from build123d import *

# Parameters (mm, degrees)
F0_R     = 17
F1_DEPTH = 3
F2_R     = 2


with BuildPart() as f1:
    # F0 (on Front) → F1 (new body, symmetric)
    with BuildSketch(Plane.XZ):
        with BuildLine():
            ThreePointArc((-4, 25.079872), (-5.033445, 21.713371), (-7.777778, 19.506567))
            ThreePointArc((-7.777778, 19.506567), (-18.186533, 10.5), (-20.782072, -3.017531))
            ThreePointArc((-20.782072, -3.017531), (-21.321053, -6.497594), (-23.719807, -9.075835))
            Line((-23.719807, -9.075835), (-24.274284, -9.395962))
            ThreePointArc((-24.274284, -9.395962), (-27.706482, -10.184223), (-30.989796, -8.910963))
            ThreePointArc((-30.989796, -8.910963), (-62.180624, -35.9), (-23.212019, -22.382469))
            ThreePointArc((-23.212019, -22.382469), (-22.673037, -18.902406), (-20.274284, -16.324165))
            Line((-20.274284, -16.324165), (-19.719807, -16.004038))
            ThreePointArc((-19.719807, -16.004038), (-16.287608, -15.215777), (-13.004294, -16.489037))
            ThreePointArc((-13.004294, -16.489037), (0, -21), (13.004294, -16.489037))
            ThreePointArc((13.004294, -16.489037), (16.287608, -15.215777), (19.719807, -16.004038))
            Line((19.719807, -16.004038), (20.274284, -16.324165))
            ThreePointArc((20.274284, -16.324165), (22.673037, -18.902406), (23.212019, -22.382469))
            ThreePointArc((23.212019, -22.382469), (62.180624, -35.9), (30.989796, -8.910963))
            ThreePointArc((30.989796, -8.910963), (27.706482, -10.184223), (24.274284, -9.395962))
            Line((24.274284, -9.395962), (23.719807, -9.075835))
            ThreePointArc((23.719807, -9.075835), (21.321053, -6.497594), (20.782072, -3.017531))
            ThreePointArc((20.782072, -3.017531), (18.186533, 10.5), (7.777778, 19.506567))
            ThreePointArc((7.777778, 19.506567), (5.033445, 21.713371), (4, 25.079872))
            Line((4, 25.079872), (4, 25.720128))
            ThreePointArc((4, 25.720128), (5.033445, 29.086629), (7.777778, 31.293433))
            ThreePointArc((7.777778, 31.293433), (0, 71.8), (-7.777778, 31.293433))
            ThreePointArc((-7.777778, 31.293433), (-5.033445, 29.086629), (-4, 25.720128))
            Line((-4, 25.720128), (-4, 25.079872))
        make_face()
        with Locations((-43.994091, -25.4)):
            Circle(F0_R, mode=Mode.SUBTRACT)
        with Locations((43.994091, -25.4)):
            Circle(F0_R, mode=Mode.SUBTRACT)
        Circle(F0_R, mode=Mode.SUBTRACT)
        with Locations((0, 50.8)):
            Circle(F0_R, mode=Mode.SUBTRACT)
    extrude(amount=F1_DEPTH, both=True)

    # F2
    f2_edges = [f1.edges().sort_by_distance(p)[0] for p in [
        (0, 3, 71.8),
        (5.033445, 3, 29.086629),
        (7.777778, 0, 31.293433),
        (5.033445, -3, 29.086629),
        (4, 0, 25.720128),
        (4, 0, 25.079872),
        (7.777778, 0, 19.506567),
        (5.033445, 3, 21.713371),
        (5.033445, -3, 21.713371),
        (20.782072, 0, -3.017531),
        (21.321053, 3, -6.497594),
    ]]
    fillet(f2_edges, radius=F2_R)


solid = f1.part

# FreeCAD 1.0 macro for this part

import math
import FreeCAD as App
import Part
import Sketcher
Q = App.Units.Quantity


def edges_at(feature, points):
    """Names of the edges that pass closest to the given points."""
    edges = feature.Shape.Edges
    near = lambda p: min(range(len(edges)), key=lambda i: edges[i].distToShape(Part.Vertex(*p))[0])
    return sorted({f"Edge{near(p) + 1}" for p in points})

doc = App.newDocument("Part")
body = doc.addObject("PartDesign::Body", "Body")

sketch1 = body.newObject("Sketcher::SketchObject", "Sketch")
sketch1.AttachmentSupport = (doc.getObject("XZ_Plane"), [""])
sketch1.MapMode = "FlatFace"
sketch1.addGeometry([
    Part.ArcOfCircle(Part.Circle(App.Vector(-10, 25.1, 0), App.Vector(0, 0, 1), 6), math.radians(-68), math.radians(0)),
    Part.ArcOfCircle(Part.Circle(App.Vector(0, 0, 0), App.Vector(0, 0, 1), 21), math.radians(112), math.radians(188)),
    Part.ArcOfCircle(Part.Circle(App.Vector(-26.7, -3.9, 0), App.Vector(0, 0, 1), 6), math.radians(-60), math.radians(8)),
    Part.LineSegment(App.Vector(-23.7, -9.1, 0), App.Vector(-24.3, -9.4, 0)),
    Part.ArcOfCircle(Part.Circle(App.Vector(-27.3, -4.2, 0), App.Vector(0, 0, 1), 6), math.radians(-128), math.radians(-60)),
    Part.ArcOfCircle(Part.Circle(App.Vector(-44, -25.4, 0), App.Vector(0, 0, 1), 21), math.radians(52), math.radians(368)),
    Part.ArcOfCircle(Part.Circle(App.Vector(-17.3, -21.5, 0), App.Vector(0, 0, 1), 6), math.radians(120), math.radians(188)),
    Part.LineSegment(App.Vector(-20.3, -16.3, 0), App.Vector(-19.7, -16, 0)),
    Part.ArcOfCircle(Part.Circle(App.Vector(-16.7, -21.2, 0), App.Vector(0, 0, 1), 6), math.radians(52), math.radians(120)),
    Part.ArcOfCircle(Part.Circle(App.Vector(0, 0, 0), App.Vector(0, 0, 1), 21), math.radians(-128), math.radians(-52)),
    Part.ArcOfCircle(Part.Circle(App.Vector(16.7, -21.2, 0), App.Vector(0, 0, 1), 6), math.radians(60), math.radians(128)),
    Part.LineSegment(App.Vector(19.7, -16, 0), App.Vector(20.3, -16.3, 0)),
    Part.ArcOfCircle(Part.Circle(App.Vector(17.3, -21.5, 0), App.Vector(0, 0, 1), 6), math.radians(-8), math.radians(60)),
    Part.ArcOfCircle(Part.Circle(App.Vector(44, -25.4, 0), App.Vector(0, 0, 1), 21), math.radians(172), math.radians(488)),
    Part.ArcOfCircle(Part.Circle(App.Vector(27.3, -4.2, 0), App.Vector(0, 0, 1), 6), math.radians(-120), math.radians(-52)),
    Part.LineSegment(App.Vector(24.3, -9.4, 0), App.Vector(23.7, -9.1, 0)),
    Part.ArcOfCircle(Part.Circle(App.Vector(26.7, -3.9, 0), App.Vector(0, 0, 1), 6), math.radians(172), math.radians(240)),
    Part.ArcOfCircle(Part.Circle(App.Vector(0, 0, 0), App.Vector(0, 0, 1), 21), math.radians(-8), math.radians(68)),
    Part.ArcOfCircle(Part.Circle(App.Vector(10, 25.1, 0), App.Vector(0, 0, 1), 6), math.radians(-180), math.radians(-112)),
    Part.LineSegment(App.Vector(4, 25.1, 0), App.Vector(4, 25.7, 0)),
    Part.ArcOfCircle(Part.Circle(App.Vector(10, 25.7, 0), App.Vector(0, 0, 1), 6), math.radians(112), math.radians(180)),
    Part.ArcOfCircle(Part.Circle(App.Vector(0, 50.8, 0), App.Vector(0, 0, 1), 21), math.radians(-68), math.radians(248)),
    Part.ArcOfCircle(Part.Circle(App.Vector(-10, 25.7, 0), App.Vector(0, 0, 1), 6), math.radians(0), math.radians(68)),
    Part.LineSegment(App.Vector(-4, 25.7, 0), App.Vector(-4, 25.1, 0)),
    Part.Circle(App.Vector(-44, -25.4, 0), App.Vector(0, 0, 1), 17),
    Part.Circle(App.Vector(44, -25.4, 0), App.Vector(0, 0, 1), 17),
    Part.Circle(App.Vector(0, 0, 0), App.Vector(0, 0, 1), 17),
    Part.Circle(App.Vector(0, 50.8, 0), App.Vector(0, 0, 1), 17),
], False)
sketch1.addConstraint([
    Sketcher.Constraint("Tangent", 0, 1, 1, 1),
    Sketcher.Constraint("Tangent", 1, 2, 2, 2),
    Sketcher.Constraint("Tangent", 2, 1, 3, 1),
    Sketcher.Constraint("Tangent", 3, 2, 4, 2),
    Sketcher.Constraint("Tangent", 4, 1, 5, 1),
    Sketcher.Constraint("Tangent", 5, 2, 6, 2),
    Sketcher.Constraint("Tangent", 6, 1, 7, 1),
    Sketcher.Constraint("Tangent", 7, 2, 8, 2),
    Sketcher.Constraint("Tangent", 8, 1, 9, 1),
    Sketcher.Constraint("Tangent", 9, 2, 10, 2),
    Sketcher.Constraint("Tangent", 10, 1, 11, 1),
    Sketcher.Constraint("Tangent", 11, 2, 12, 2),
    Sketcher.Constraint("Tangent", 12, 1, 13, 1),
    Sketcher.Constraint("Tangent", 13, 2, 14, 2),
    Sketcher.Constraint("Tangent", 14, 1, 15, 1),
    Sketcher.Constraint("Tangent", 15, 2, 16, 2),
    Sketcher.Constraint("Tangent", 16, 1, 17, 1),
    Sketcher.Constraint("Tangent", 17, 2, 18, 2),
    Sketcher.Constraint("Tangent", 18, 1, 19, 1),
    Sketcher.Constraint("Tangent", 19, 2, 20, 2),
    Sketcher.Constraint("Tangent", 20, 1, 21, 1),
    Sketcher.Constraint("Tangent", 21, 2, 22, 2),
    Sketcher.Constraint("Tangent", 22, 1, 23, 1),
    Sketcher.Constraint("Tangent", 23, 2, 0, 2),
    Sketcher.Constraint("Vertical", 19),
    Sketcher.Constraint("Vertical", 23),
    Sketcher.Constraint("Coincident", 1, 3, -1, 1),
    Sketcher.Constraint("Coincident", 9, 3, -1, 1),
    Sketcher.Constraint("Coincident", 17, 3, -1, 1),
    Sketcher.Constraint("Coincident", 26, 3, -1, 1),
    Sketcher.Constraint("Coincident", 24, 3, 5, 3),
    Sketcher.Constraint("Coincident", 25, 3, 13, 3),
    Sketcher.Constraint("Coincident", 27, 3, 21, 3),
    Sketcher.Constraint("Equal", 2, 4),
    Sketcher.Constraint("Equal", 1, 5),
    Sketcher.Constraint("Equal", 4, 8),
    Sketcher.Constraint("Equal", 5, 9),
    Sketcher.Constraint("Equal", 8, 10),
    Sketcher.Constraint("Equal", 6, 12),
    Sketcher.Constraint("Equal", 9, 13),
    Sketcher.Constraint("Equal", 10, 14),
    Sketcher.Constraint("Equal", 14, 16),
    Sketcher.Constraint("Equal", 13, 17),
    Sketcher.Constraint("Equal", 14, 18),
    Sketcher.Constraint("Equal", 18, 20),
    Sketcher.Constraint("Equal", 17, 21),
    Sketcher.Constraint("Equal", 20, 22),
    Sketcher.Constraint("Equal", 24, 25),
    Sketcher.Constraint("Equal", 25, 26),
    Sketcher.Constraint("Equal", 26, 27),
    Sketcher.Constraint("Symmetric", 6, 3, 12, 3, -2),
    Sketcher.Constraint("Symmetric", 4, 3, 14, 3, -2),
    Sketcher.Constraint("Symmetric", 0, 3, 18, 3, -2),
    Sketcher.Constraint("PointOnObject", 21, 3, -2),
    Sketcher.Constraint("Parallel", 3, 7),
    Sketcher.Constraint("Parallel", 11, 15),
    Sketcher.Constraint("Horizontal", 8, 3, 10, 3),
    Sketcher.Constraint("Equal", 3, 7),
    Sketcher.Constraint("Diameter", 24, Q("34 mm")),
    Sketcher.Constraint("Radius", 0, Q("6.000001 mm")),
    Sketcher.Constraint("Radius", 1, Q("21.000001 mm")),
    Sketcher.Constraint("DistanceX", 0, 3, -1, 1, Q("10.000001 mm")),
    Sketcher.Constraint("DistanceX", 2, 3, 8, 3, Q("9.999998 mm")),
    Sketcher.Constraint("DistanceX", 2, 3, 2, 1, Q("2.999998 mm")),
    Sketcher.Constraint("DistanceY", 5, 3, -1, 1, Q("25.399999 mm")),
    Sketcher.Constraint("DistanceY", -1, 1, 21, 3, Q("50.8 mm")),
    Sketcher.Constraint("Radius", 6, Q("6.000003 mm")),
    Sketcher.Constraint("DistanceY", 4, 3, -1, 1, Q("4.19981 mm")),
])
pad1 = body.newObject("PartDesign::Pad", "Pad")
pad1.Profile = sketch1
pad1.Length = 6
pad1.Midplane = True
doc.recompute()

fillet = body.newObject("PartDesign::Fillet", "Fillet")
fillet.Base = (pad1, edges_at(pad1, [
    (0, 3, 71.8),
    (5.033, 3, 29.087),
    (7.778, 0, 31.293),
    (5.033, -3, 29.087),
    (4, 0, 25.72),
    (4, 0, 25.08),
    (7.778, 0, 19.507),
    (5.033, 3, 21.713),
    (5.033, -3, 21.713),
    (20.782, 0, -3.018),
    (21.321, 3, -6.498),
]))
fillet.Radius = 2

doc.recompute()
